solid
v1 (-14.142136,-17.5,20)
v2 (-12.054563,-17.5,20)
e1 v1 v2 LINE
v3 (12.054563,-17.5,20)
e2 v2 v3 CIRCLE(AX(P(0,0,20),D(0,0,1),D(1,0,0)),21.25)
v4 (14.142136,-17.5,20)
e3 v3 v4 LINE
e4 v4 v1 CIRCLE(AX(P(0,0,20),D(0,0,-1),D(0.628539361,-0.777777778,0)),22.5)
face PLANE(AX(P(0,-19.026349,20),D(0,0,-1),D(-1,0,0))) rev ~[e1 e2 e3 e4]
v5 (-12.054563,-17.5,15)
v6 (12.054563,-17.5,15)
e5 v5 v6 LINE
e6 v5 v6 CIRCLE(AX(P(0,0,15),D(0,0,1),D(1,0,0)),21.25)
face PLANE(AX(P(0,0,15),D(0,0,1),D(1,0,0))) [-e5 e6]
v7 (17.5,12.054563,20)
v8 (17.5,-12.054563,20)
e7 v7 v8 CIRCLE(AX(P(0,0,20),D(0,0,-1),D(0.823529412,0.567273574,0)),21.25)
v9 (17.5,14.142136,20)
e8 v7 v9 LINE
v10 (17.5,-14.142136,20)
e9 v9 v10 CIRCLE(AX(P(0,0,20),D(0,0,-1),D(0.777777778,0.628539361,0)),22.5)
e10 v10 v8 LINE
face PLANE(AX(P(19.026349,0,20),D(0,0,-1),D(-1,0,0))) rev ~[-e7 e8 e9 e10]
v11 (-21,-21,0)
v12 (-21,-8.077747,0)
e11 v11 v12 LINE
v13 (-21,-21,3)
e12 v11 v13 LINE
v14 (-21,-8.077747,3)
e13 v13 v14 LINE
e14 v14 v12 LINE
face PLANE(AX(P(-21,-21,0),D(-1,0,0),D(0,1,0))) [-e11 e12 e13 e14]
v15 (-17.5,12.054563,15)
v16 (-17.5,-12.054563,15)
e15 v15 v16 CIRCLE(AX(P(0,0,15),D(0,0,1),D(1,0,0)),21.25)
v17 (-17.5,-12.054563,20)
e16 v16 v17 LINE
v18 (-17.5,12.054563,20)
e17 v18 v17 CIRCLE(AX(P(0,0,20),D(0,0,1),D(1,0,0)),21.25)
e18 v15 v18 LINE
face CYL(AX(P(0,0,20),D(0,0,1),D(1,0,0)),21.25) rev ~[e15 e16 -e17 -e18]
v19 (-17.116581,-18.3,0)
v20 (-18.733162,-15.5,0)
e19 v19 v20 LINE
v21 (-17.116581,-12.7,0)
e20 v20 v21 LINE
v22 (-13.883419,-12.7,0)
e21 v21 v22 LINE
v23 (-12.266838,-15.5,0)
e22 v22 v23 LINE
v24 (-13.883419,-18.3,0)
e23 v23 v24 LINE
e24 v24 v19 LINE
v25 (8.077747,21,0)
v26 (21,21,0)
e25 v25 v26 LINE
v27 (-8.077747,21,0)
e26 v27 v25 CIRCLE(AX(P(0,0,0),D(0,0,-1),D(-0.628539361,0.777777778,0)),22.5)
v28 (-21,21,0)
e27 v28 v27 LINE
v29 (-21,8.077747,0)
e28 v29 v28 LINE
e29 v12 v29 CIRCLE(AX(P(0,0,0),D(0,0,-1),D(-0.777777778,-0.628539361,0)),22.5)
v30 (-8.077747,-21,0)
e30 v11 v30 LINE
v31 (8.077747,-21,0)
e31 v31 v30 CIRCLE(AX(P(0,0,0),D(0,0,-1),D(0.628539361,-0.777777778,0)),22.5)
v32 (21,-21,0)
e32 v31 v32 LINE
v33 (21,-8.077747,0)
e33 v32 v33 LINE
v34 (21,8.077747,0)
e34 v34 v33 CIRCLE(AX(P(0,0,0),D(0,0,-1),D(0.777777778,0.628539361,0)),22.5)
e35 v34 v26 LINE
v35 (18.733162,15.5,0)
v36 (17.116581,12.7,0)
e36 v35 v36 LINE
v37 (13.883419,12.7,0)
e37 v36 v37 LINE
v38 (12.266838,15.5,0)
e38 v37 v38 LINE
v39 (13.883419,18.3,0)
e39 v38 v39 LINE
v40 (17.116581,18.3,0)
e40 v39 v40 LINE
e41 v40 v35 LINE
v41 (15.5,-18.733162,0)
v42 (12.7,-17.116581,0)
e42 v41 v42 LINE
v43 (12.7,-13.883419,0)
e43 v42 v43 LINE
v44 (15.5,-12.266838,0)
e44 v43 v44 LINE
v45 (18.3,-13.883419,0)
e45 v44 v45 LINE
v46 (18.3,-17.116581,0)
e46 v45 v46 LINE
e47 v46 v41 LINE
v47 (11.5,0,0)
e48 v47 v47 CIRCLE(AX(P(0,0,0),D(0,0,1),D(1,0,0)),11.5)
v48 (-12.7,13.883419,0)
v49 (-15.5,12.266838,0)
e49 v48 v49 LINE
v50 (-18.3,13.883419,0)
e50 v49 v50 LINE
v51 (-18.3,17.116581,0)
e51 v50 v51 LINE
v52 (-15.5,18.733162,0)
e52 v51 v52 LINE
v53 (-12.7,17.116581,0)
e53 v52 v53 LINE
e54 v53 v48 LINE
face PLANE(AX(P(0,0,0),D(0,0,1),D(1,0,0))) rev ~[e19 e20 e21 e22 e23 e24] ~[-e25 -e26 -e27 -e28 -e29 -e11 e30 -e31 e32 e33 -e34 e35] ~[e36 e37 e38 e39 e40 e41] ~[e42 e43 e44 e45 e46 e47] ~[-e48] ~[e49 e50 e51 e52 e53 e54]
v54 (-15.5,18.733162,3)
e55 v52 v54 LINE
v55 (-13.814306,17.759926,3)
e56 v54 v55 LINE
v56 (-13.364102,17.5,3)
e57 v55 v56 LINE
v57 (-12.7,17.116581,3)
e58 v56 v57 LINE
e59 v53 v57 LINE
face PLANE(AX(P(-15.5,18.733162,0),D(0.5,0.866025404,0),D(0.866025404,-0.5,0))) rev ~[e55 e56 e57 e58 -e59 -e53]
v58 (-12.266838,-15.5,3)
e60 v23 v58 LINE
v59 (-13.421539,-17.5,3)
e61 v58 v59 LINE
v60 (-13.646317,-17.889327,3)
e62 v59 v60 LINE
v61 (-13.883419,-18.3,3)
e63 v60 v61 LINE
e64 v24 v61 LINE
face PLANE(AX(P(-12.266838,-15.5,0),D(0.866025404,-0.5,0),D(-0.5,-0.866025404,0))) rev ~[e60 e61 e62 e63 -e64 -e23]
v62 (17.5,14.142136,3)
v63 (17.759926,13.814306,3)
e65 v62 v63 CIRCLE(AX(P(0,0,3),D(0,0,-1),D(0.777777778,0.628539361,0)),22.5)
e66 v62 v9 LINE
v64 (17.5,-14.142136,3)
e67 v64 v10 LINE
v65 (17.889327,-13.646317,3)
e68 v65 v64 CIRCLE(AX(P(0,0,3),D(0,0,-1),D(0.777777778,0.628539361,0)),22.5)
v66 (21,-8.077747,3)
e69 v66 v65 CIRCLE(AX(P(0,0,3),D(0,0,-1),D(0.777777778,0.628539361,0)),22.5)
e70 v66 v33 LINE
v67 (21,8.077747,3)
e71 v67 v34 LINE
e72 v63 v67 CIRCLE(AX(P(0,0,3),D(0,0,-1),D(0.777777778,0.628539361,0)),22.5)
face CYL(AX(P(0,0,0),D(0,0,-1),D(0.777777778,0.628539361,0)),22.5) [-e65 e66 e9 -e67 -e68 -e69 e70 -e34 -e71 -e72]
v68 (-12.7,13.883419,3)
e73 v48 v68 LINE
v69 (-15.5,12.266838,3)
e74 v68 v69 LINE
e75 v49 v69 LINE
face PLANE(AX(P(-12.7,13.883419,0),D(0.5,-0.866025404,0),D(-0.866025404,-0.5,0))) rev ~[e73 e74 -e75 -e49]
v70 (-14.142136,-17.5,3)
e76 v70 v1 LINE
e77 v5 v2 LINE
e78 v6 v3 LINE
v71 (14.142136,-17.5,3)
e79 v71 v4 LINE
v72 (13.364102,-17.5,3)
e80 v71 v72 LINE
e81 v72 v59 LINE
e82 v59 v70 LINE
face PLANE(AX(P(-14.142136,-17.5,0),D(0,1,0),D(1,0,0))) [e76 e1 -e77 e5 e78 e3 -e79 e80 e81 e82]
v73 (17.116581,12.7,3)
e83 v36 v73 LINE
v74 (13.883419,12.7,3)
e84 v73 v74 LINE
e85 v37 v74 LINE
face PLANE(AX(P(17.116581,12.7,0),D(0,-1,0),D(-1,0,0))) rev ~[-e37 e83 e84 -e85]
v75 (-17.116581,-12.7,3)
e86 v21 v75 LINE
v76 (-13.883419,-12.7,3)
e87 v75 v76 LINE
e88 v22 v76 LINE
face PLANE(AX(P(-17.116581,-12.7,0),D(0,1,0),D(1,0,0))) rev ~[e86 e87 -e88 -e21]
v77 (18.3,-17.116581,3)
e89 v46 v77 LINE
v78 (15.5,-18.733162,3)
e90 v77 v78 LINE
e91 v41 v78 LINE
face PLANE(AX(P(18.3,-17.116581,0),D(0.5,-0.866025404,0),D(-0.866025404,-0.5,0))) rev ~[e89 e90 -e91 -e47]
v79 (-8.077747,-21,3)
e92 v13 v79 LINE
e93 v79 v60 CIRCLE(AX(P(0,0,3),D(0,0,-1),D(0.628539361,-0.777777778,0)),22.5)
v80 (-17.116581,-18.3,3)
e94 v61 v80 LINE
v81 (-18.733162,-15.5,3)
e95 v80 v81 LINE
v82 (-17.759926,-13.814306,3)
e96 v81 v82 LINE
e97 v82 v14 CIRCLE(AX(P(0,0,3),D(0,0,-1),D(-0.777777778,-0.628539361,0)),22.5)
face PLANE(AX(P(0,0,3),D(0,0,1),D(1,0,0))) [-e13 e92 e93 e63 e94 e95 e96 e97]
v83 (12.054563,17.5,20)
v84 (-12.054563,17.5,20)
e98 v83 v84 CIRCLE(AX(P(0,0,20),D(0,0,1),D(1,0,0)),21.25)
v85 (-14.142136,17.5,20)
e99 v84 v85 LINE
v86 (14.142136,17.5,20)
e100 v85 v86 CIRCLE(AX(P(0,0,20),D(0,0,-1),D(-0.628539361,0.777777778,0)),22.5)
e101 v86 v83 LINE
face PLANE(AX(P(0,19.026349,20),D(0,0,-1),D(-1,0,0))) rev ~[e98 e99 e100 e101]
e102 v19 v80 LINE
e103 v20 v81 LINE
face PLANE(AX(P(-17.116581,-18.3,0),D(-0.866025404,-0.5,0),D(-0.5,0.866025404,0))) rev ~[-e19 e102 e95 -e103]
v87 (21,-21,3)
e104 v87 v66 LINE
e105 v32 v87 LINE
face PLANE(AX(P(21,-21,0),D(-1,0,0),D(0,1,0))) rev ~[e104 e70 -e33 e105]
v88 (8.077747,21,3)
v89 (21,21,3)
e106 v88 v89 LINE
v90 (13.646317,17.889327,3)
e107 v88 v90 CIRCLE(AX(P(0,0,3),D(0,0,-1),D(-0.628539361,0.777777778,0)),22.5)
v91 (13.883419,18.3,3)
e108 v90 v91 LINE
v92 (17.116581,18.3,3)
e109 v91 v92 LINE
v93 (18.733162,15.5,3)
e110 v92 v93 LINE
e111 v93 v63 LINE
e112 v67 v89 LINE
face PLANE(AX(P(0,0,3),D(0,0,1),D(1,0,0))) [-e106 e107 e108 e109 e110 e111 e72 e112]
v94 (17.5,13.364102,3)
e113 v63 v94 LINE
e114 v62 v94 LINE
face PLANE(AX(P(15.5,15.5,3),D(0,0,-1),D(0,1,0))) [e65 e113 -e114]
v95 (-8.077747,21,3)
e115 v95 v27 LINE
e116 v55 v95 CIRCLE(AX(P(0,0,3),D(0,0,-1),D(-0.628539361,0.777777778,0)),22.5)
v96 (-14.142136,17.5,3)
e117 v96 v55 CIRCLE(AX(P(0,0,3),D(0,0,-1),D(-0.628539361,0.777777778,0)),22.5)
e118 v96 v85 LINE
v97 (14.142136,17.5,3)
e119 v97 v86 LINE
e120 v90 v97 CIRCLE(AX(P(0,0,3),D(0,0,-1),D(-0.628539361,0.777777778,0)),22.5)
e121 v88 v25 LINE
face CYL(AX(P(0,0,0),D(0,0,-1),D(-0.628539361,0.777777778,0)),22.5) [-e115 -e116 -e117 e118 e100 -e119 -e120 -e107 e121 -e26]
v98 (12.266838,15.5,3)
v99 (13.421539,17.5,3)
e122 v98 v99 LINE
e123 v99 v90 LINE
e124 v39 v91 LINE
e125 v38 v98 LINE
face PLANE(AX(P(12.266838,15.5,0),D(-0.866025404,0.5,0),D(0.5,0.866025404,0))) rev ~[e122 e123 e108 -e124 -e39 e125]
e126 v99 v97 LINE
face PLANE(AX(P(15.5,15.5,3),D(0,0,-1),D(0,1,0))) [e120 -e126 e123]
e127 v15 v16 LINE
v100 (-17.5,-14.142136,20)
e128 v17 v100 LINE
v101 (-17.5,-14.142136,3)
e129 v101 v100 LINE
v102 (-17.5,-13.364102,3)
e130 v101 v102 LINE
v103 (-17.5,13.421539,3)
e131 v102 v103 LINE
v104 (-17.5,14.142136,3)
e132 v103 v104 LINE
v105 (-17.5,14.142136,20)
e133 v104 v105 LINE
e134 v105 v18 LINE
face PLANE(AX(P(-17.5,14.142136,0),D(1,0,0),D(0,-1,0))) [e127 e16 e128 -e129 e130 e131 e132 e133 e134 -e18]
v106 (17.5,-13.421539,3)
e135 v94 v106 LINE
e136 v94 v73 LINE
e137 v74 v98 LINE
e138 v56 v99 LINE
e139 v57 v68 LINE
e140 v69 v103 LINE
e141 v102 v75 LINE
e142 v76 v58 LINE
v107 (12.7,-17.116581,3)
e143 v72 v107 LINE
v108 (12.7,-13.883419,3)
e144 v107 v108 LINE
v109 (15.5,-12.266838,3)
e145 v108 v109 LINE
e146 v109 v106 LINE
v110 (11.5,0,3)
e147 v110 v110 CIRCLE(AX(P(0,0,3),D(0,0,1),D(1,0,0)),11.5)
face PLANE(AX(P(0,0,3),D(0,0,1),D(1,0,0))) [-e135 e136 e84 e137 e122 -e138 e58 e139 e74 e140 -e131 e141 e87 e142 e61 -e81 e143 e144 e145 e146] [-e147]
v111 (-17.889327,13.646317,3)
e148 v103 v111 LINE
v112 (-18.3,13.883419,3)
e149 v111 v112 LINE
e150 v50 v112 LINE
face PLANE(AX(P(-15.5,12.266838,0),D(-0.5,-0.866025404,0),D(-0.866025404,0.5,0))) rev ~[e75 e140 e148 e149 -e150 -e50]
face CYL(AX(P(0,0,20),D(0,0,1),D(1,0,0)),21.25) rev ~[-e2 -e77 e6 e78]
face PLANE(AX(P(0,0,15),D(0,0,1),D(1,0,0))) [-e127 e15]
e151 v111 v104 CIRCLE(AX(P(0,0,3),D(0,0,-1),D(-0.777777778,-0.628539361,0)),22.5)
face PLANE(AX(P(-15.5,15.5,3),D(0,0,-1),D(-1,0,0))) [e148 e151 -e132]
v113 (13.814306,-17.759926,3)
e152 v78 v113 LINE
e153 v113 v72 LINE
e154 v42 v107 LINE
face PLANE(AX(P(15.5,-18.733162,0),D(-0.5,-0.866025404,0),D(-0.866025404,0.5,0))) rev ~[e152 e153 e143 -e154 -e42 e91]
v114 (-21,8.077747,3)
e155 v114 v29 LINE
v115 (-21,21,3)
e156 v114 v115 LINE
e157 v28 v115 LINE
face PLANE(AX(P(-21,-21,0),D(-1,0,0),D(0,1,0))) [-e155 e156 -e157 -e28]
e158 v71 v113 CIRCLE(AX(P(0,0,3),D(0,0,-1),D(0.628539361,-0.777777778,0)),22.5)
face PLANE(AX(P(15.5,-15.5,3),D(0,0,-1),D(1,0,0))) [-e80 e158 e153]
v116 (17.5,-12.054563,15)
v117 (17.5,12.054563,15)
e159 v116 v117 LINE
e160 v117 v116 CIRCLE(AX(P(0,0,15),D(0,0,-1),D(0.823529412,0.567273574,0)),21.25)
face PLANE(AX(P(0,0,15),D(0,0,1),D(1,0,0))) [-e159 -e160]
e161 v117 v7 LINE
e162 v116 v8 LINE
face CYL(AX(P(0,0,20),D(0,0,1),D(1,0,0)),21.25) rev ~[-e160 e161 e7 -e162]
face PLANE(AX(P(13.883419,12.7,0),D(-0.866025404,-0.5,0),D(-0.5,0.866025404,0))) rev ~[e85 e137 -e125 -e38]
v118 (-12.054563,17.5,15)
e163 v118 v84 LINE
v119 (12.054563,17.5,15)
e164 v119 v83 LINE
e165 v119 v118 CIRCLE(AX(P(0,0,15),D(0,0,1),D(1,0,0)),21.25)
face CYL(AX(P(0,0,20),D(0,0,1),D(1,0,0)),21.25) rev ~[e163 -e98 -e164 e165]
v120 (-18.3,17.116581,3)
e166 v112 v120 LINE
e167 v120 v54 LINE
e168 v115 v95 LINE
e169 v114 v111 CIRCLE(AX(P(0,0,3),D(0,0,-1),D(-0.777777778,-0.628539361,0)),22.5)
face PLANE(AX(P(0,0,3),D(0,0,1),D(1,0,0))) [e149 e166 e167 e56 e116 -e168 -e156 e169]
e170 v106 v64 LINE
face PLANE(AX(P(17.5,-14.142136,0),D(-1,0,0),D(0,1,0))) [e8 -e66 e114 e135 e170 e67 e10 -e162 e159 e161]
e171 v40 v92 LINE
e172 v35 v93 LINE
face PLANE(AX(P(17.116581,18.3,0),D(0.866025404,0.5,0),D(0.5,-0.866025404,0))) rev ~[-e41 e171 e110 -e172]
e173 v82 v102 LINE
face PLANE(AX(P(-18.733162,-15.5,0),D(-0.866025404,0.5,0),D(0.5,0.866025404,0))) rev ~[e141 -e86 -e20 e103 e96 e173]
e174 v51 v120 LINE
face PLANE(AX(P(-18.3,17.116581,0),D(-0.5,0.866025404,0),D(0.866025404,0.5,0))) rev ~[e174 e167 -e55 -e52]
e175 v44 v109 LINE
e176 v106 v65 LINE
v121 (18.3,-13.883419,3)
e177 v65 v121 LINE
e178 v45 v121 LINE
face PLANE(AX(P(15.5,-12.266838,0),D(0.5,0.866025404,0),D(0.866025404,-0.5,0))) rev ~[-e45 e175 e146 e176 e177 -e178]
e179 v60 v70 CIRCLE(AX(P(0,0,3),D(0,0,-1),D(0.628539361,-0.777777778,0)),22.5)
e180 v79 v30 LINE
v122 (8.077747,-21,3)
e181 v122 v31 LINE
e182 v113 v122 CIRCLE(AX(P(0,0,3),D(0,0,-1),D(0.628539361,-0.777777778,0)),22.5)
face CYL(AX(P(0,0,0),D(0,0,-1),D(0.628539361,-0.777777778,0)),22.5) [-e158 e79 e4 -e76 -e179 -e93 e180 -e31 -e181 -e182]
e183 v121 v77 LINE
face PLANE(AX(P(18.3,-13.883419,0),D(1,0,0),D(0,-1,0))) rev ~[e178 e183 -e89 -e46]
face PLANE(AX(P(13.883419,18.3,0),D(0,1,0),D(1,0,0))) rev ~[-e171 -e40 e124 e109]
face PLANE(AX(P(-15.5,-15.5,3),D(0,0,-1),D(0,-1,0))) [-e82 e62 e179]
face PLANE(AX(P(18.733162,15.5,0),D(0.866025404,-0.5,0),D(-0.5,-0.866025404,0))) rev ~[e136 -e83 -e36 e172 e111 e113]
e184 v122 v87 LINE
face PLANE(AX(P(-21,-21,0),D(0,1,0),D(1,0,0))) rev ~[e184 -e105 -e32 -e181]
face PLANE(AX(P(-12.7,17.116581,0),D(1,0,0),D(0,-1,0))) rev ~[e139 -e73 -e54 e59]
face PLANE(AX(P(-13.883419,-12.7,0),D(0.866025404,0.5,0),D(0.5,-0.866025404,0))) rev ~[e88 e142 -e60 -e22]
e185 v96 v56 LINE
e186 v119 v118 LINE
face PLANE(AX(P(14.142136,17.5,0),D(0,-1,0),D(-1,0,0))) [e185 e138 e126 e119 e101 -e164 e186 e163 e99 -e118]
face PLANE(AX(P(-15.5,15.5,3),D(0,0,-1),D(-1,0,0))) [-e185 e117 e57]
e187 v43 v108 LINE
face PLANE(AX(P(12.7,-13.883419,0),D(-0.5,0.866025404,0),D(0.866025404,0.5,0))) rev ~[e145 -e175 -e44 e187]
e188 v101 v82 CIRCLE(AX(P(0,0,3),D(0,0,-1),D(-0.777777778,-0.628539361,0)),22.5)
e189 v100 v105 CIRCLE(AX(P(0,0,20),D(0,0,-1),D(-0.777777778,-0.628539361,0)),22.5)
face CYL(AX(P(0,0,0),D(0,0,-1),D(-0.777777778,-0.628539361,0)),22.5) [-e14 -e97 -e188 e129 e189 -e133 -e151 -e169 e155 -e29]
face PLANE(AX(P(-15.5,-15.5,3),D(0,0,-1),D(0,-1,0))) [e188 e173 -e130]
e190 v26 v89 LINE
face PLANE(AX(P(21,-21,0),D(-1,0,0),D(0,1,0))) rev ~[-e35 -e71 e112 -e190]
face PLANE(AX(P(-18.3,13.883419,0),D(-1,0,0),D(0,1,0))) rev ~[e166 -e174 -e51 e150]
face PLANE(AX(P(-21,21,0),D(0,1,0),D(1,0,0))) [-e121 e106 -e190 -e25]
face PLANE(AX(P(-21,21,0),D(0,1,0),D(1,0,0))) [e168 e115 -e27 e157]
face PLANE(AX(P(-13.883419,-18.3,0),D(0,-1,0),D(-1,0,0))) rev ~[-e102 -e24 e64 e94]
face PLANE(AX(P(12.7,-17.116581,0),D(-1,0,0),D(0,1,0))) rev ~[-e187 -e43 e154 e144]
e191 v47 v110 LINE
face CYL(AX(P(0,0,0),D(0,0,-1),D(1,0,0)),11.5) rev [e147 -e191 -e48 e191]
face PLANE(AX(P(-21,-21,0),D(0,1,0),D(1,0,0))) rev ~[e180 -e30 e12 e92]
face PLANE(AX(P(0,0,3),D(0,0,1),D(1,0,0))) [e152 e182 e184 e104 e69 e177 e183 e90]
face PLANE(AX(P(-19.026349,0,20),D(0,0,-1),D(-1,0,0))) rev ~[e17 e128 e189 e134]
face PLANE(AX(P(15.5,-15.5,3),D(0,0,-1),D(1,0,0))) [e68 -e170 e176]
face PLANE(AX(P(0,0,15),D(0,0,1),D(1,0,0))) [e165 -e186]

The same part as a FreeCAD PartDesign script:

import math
import FreeCAD as App
import Part
import Sketcher
from FreeCAD import Vector
Q = App.Units.Quantity


def add_polygon(sketch, points):
    """Adds a closed chain of lines whose ends are joined by coincident constraints."""
    first, n = sketch.GeometryCount, len(points)
    for a, b in zip(points, points[1:] + points[:1]):
        sketch.addGeometry(Part.LineSegment(App.Vector(*a, 0), App.Vector(*b, 0)), False)
    for i in range(n):
        sketch.addConstraint(Sketcher.Constraint("Coincident", first + i, 2, first + (i + 1) % n, 1))

doc = App.newDocument("Part")
body = doc.addObject("PartDesign::Body", "Body")

sketch1 = doc.addObject("Sketcher::SketchObject", "Sketch")
body.addObject(sketch1)
sketch1.AttachmentSupport = (doc.XY_Plane, [""])
sketch1.MapMode = "FlatFace"
add_polygon(sketch1, [(-21, 21), (-21, -21), (21, -21), (21, 21)])
sketch1.addGeometry(Part.Circle(Vector(-15.5, -15.5, 0), Vector(0, 0, 1), 1.5), False)
sketch1.addGeometry(Part.Circle(Vector(15.5, -15.5, 0), Vector(0, 0, 1), 1.5), False)
sketch1.addGeometry(Part.Circle(Vector(-15.5, 15.5, 0), Vector(0, 0, 1), 1.5), False)
sketch1.addGeometry(Part.Circle(Vector(0, 0, 0), Vector(0, 0, 1), 11.5), False)
sketch1.addGeometry(Part.Circle(Vector(15.5, 15.5, 0), Vector(0, 0, 1), 1.5), False)
sketch1.addConstraint(Sketcher.Constraint("Vertical", 0))
sketch1.addConstraint(Sketcher.Constraint("Horizontal", 1))
sketch1.addConstraint(Sketcher.Constraint("Vertical", 2))
sketch1.addConstraint(Sketcher.Constraint("Horizontal", 3))
sketch1.addConstraint(Sketcher.Constraint("Coincident", 7, 3, -1, 1))
sketch1.addConstraint(Sketcher.Constraint("Equal", 4, 5))
sketch1.addConstraint(Sketcher.Constraint("Equal", 5, 6))
sketch1.addConstraint(Sketcher.Constraint("Equal", 6, 8))
sketch1.addConstraint(Sketcher.Constraint("Symmetric", 5, 3, 6, 3, -1, 1))
sketch1.addConstraint(Sketcher.Constraint("Symmetric", 4, 3, 8, 3, -1, 1))
sketch1.addConstraint(Sketcher.Constraint("Symmetric", 0, 2, 2, 2, -1, 1))
sketch1.addConstraint(Sketcher.Constraint("Symmetric", 4, 3, 5, 3, -2))
sketch1.addConstraint(Sketcher.Constraint("Equal", 3, 0))
sketch1.addConstraint(Sketcher.Constraint("Diameter", 4, Q("3 mm")))
sketch1.addConstraint(Sketcher.Constraint("Diameter", 7, Q("23 mm")))
sketch1.addConstraint(Sketcher.Constraint("DistanceX", 1, 1, 1, 2, Q("42 mm")))
sketch1.addConstraint(Sketcher.Constraint("DistanceX", 4, 3, 5, 3, Q("31 mm")))
sketch1.addConstraint(Sketcher.Constraint("DistanceY", 4, 3, 6, 3, Q("31 mm")))
pad1 = doc.addObject("PartDesign::Pad", "Pad")
body.addObject(pad1)
pad1.Profile = sketch1
pad1.Length = 3

sketch2 = doc.addObject("Sketcher::SketchObject", "Sketch001")
body.addObject(sketch2)
sketch2.AttachmentSupport = (doc.XY_Plane, [""])
sketch2.MapMode = "FlatFace"
sketch2.addGeometry(Part.LineSegment(Vector(-18, 14, 0), Vector(-18, -14, 0)), False)
sketch2.addGeometry(Part.ArcOfCircle(Part.Circle(Vector(0, 0, 0), Vector(0, 0, 1), 23), math.radians(141), math.radians(219)), False)
sketch2.addGeometry(Part.ArcOfCircle(Part.Circle(Vector(0, 0, 0), Vector(0, 0, 1), 23), math.radians(-129), math.radians(-51)), False)
sketch2.addGeometry(Part.LineSegment(Vector(-14, -18, 0), Vector(14, -18, 0)), False)
sketch2.addGeometry(Part.LineSegment(Vector(14, 18, 0), Vector(-14, 18, 0)), False)
sketch2.addGeometry(Part.ArcOfCircle(Part.Circle(Vector(0, 0, 0), Vector(0, 0, 1), 23), math.radians(51), math.radians(129)), False)
sketch2.addGeometry(Part.ArcOfCircle(Part.Circle(Vector(0, 0, 0), Vector(0, 0, 1), 23), math.radians(-39), math.radians(39)), False)
sketch2.addGeometry(Part.LineSegment(Vector(18, -14, 0), Vector(18, 14, 0)), False)
sketch2.addConstraint(Sketcher.Constraint("Coincident", 0, 1, 1, 1))
sketch2.addConstraint(Sketcher.Constraint("Coincident", 1, 2, 0, 2))
sketch2.addConstraint(Sketcher.Constraint("Coincident", 2, 1, 3, 1))
sketch2.addConstraint(Sketcher.Constraint("Coincident", 3, 2, 2, 2))
sketch2.addConstraint(Sketcher.Constraint("Coincident", 4, 1, 5, 1))
sketch2.addConstraint(Sketcher.Constraint("Coincident", 5, 2, 4, 2))
sketch2.addConstraint(Sketcher.Constraint("Coincident", 6, 1, 7, 1))
sketch2.addConstraint(Sketcher.Constraint("Coincident", 7, 2, 6, 2))
sketch2.addConstraint(Sketcher.Constraint("Vertical", 0))
sketch2.addConstraint(Sketcher.Constraint("Horizontal", 3))
sketch2.addConstraint(Sketcher.Constraint("Horizontal", 4))
sketch2.addConstraint(Sketcher.Constraint("Vertical", 7))
sketch2.addConstraint(Sketcher.Constraint("Coincident", 1, 3, -1, 1))
sketch2.addConstraint(Sketcher.Constraint("Coincident", 2, 3, -1, 1))
sketch2.addConstraint(Sketcher.Constraint("Coincident", 5, 3, -1, 1))
sketch2.addConstraint(Sketcher.Constraint("Coincident", 6, 3, -1, 1))
sketch2.addConstraint(Sketcher.Constraint("Equal", 1, 2))
sketch2.addConstraint(Sketcher.Constraint("Equal", 2, 5))
sketch2.addConstraint(Sketcher.Constraint("Equal", 5, 6))
sketch2.addConstraint(Sketcher.Constraint("Horizontal", 1, 2, 6, 1))
sketch2.addConstraint(Sketcher.Constraint("Vertical", 3, 2, 4, 1))
sketch2.addConstraint(Sketcher.Constraint("Equal", 4, 0))
sketch2.addConstraint(Sketcher.Constraint("Radius", 1, Q("22.5 mm")))
sketch2.addConstraint(Sketcher.Constraint("DistanceX", 0, 1, -1, 1, Q("17.5 mm")))
pad2 = doc.addObject("PartDesign::Pad", "Pad001")
body.addObject(pad2)
pad2.Profile = sketch2
pad2.Length = 20

sketch3 = doc.addObject("Sketcher::SketchObject", "Sketch002")
body.addObject(sketch3)
sketch3.AttachmentSupport = (doc.XY_Plane, [""])
sketch3.MapMode = "FlatFace"
sketch3.AttachmentOffset = App.Placement(Vector(0, 0, 20), App.Rotation())
sketch3.addGeometry(Part.Circle(Vector(0, 0, 0), Vector(0, 0, 1), 21), False)
sketch3.addConstraint(Sketcher.Constraint("Coincident", 0, 3, -1, 1))
sketch3.addConstraint(Sketcher.Constraint("Diameter", 0, Q("42.5 mm")))
pocket1 = doc.addObject("PartDesign::Pocket", "Pocket")
body.addObject(pocket1)
pocket1.Profile = sketch3
pocket1.Length = 5

sketch4 = doc.addObject("Sketcher::SketchObject", "Sketch003")
body.addObject(sketch4)
sketch4.AttachmentSupport = (doc.XY_Plane, [""])
sketch4.MapMode = "FlatFace"
add_polygon(sketch4, [(-18.3, 17.1), (-15.5, 18.7), (-12.7, 17.1), (-12.7, 13.9), (-15.5, 12.3), (-18.3, 13.9)])
sketch4.addConstraint(Sketcher.Constraint("Vertical", 2))
sketch4.addConstraint(Sketcher.Constraint("Vertical", 5))
sketch4.addConstraint(Sketcher.Constraint("Parallel", 0, 3))
sketch4.addConstraint(Sketcher.Constraint("Parallel", 1, 4))
sketch4.addConstraint(Sketcher.Constraint("Horizontal", 2, 2, 4, 2))
sketch4.addConstraint(Sketcher.Constraint("Horizontal", 1, 2, 5, 2))
sketch4.addConstraint(Sketcher.Constraint("Vertical", 0, 2, 3, 2))
sketch4.addConstraint(Sketcher.Constraint("Angle", 0, Q("30 deg")))
sketch4.addConstraint(Sketcher.Constraint("DistanceX", 0, 2, -1, 1, Q("15.5 mm")))
sketch4.addConstraint(Sketcher.Constraint("DistanceX", 1, 2, -1, 1, Q("12.7 mm")))
sketch4.addConstraint(Sketcher.Constraint("DistanceY", 2, 2, 2, 1, Q("3.233162 mm")))
sketch4.addConstraint(Sketcher.Constraint("DistanceY", -1, 1, 0, 2, Q("18.733162 mm")))
pocket2 = doc.addObject("PartDesign::Pocket", "Pocket001")
body.addObject(pocket2)
pocket2.Profile = sketch4
pocket2.Length = 3
pocket2.Reversed = True
doc.recompute()

polarpattern = doc.addObject("PartDesign::PolarPattern", "PolarPattern")
body.addObject(polarpattern)
polarpattern.Originals = [pocket2]
polarpattern.Axis = (doc.Z_Axis, [""])
polarpattern.Angle = 360
polarpattern.Occurrences = 4
body.Tip = polarpattern

doc.recompute()
